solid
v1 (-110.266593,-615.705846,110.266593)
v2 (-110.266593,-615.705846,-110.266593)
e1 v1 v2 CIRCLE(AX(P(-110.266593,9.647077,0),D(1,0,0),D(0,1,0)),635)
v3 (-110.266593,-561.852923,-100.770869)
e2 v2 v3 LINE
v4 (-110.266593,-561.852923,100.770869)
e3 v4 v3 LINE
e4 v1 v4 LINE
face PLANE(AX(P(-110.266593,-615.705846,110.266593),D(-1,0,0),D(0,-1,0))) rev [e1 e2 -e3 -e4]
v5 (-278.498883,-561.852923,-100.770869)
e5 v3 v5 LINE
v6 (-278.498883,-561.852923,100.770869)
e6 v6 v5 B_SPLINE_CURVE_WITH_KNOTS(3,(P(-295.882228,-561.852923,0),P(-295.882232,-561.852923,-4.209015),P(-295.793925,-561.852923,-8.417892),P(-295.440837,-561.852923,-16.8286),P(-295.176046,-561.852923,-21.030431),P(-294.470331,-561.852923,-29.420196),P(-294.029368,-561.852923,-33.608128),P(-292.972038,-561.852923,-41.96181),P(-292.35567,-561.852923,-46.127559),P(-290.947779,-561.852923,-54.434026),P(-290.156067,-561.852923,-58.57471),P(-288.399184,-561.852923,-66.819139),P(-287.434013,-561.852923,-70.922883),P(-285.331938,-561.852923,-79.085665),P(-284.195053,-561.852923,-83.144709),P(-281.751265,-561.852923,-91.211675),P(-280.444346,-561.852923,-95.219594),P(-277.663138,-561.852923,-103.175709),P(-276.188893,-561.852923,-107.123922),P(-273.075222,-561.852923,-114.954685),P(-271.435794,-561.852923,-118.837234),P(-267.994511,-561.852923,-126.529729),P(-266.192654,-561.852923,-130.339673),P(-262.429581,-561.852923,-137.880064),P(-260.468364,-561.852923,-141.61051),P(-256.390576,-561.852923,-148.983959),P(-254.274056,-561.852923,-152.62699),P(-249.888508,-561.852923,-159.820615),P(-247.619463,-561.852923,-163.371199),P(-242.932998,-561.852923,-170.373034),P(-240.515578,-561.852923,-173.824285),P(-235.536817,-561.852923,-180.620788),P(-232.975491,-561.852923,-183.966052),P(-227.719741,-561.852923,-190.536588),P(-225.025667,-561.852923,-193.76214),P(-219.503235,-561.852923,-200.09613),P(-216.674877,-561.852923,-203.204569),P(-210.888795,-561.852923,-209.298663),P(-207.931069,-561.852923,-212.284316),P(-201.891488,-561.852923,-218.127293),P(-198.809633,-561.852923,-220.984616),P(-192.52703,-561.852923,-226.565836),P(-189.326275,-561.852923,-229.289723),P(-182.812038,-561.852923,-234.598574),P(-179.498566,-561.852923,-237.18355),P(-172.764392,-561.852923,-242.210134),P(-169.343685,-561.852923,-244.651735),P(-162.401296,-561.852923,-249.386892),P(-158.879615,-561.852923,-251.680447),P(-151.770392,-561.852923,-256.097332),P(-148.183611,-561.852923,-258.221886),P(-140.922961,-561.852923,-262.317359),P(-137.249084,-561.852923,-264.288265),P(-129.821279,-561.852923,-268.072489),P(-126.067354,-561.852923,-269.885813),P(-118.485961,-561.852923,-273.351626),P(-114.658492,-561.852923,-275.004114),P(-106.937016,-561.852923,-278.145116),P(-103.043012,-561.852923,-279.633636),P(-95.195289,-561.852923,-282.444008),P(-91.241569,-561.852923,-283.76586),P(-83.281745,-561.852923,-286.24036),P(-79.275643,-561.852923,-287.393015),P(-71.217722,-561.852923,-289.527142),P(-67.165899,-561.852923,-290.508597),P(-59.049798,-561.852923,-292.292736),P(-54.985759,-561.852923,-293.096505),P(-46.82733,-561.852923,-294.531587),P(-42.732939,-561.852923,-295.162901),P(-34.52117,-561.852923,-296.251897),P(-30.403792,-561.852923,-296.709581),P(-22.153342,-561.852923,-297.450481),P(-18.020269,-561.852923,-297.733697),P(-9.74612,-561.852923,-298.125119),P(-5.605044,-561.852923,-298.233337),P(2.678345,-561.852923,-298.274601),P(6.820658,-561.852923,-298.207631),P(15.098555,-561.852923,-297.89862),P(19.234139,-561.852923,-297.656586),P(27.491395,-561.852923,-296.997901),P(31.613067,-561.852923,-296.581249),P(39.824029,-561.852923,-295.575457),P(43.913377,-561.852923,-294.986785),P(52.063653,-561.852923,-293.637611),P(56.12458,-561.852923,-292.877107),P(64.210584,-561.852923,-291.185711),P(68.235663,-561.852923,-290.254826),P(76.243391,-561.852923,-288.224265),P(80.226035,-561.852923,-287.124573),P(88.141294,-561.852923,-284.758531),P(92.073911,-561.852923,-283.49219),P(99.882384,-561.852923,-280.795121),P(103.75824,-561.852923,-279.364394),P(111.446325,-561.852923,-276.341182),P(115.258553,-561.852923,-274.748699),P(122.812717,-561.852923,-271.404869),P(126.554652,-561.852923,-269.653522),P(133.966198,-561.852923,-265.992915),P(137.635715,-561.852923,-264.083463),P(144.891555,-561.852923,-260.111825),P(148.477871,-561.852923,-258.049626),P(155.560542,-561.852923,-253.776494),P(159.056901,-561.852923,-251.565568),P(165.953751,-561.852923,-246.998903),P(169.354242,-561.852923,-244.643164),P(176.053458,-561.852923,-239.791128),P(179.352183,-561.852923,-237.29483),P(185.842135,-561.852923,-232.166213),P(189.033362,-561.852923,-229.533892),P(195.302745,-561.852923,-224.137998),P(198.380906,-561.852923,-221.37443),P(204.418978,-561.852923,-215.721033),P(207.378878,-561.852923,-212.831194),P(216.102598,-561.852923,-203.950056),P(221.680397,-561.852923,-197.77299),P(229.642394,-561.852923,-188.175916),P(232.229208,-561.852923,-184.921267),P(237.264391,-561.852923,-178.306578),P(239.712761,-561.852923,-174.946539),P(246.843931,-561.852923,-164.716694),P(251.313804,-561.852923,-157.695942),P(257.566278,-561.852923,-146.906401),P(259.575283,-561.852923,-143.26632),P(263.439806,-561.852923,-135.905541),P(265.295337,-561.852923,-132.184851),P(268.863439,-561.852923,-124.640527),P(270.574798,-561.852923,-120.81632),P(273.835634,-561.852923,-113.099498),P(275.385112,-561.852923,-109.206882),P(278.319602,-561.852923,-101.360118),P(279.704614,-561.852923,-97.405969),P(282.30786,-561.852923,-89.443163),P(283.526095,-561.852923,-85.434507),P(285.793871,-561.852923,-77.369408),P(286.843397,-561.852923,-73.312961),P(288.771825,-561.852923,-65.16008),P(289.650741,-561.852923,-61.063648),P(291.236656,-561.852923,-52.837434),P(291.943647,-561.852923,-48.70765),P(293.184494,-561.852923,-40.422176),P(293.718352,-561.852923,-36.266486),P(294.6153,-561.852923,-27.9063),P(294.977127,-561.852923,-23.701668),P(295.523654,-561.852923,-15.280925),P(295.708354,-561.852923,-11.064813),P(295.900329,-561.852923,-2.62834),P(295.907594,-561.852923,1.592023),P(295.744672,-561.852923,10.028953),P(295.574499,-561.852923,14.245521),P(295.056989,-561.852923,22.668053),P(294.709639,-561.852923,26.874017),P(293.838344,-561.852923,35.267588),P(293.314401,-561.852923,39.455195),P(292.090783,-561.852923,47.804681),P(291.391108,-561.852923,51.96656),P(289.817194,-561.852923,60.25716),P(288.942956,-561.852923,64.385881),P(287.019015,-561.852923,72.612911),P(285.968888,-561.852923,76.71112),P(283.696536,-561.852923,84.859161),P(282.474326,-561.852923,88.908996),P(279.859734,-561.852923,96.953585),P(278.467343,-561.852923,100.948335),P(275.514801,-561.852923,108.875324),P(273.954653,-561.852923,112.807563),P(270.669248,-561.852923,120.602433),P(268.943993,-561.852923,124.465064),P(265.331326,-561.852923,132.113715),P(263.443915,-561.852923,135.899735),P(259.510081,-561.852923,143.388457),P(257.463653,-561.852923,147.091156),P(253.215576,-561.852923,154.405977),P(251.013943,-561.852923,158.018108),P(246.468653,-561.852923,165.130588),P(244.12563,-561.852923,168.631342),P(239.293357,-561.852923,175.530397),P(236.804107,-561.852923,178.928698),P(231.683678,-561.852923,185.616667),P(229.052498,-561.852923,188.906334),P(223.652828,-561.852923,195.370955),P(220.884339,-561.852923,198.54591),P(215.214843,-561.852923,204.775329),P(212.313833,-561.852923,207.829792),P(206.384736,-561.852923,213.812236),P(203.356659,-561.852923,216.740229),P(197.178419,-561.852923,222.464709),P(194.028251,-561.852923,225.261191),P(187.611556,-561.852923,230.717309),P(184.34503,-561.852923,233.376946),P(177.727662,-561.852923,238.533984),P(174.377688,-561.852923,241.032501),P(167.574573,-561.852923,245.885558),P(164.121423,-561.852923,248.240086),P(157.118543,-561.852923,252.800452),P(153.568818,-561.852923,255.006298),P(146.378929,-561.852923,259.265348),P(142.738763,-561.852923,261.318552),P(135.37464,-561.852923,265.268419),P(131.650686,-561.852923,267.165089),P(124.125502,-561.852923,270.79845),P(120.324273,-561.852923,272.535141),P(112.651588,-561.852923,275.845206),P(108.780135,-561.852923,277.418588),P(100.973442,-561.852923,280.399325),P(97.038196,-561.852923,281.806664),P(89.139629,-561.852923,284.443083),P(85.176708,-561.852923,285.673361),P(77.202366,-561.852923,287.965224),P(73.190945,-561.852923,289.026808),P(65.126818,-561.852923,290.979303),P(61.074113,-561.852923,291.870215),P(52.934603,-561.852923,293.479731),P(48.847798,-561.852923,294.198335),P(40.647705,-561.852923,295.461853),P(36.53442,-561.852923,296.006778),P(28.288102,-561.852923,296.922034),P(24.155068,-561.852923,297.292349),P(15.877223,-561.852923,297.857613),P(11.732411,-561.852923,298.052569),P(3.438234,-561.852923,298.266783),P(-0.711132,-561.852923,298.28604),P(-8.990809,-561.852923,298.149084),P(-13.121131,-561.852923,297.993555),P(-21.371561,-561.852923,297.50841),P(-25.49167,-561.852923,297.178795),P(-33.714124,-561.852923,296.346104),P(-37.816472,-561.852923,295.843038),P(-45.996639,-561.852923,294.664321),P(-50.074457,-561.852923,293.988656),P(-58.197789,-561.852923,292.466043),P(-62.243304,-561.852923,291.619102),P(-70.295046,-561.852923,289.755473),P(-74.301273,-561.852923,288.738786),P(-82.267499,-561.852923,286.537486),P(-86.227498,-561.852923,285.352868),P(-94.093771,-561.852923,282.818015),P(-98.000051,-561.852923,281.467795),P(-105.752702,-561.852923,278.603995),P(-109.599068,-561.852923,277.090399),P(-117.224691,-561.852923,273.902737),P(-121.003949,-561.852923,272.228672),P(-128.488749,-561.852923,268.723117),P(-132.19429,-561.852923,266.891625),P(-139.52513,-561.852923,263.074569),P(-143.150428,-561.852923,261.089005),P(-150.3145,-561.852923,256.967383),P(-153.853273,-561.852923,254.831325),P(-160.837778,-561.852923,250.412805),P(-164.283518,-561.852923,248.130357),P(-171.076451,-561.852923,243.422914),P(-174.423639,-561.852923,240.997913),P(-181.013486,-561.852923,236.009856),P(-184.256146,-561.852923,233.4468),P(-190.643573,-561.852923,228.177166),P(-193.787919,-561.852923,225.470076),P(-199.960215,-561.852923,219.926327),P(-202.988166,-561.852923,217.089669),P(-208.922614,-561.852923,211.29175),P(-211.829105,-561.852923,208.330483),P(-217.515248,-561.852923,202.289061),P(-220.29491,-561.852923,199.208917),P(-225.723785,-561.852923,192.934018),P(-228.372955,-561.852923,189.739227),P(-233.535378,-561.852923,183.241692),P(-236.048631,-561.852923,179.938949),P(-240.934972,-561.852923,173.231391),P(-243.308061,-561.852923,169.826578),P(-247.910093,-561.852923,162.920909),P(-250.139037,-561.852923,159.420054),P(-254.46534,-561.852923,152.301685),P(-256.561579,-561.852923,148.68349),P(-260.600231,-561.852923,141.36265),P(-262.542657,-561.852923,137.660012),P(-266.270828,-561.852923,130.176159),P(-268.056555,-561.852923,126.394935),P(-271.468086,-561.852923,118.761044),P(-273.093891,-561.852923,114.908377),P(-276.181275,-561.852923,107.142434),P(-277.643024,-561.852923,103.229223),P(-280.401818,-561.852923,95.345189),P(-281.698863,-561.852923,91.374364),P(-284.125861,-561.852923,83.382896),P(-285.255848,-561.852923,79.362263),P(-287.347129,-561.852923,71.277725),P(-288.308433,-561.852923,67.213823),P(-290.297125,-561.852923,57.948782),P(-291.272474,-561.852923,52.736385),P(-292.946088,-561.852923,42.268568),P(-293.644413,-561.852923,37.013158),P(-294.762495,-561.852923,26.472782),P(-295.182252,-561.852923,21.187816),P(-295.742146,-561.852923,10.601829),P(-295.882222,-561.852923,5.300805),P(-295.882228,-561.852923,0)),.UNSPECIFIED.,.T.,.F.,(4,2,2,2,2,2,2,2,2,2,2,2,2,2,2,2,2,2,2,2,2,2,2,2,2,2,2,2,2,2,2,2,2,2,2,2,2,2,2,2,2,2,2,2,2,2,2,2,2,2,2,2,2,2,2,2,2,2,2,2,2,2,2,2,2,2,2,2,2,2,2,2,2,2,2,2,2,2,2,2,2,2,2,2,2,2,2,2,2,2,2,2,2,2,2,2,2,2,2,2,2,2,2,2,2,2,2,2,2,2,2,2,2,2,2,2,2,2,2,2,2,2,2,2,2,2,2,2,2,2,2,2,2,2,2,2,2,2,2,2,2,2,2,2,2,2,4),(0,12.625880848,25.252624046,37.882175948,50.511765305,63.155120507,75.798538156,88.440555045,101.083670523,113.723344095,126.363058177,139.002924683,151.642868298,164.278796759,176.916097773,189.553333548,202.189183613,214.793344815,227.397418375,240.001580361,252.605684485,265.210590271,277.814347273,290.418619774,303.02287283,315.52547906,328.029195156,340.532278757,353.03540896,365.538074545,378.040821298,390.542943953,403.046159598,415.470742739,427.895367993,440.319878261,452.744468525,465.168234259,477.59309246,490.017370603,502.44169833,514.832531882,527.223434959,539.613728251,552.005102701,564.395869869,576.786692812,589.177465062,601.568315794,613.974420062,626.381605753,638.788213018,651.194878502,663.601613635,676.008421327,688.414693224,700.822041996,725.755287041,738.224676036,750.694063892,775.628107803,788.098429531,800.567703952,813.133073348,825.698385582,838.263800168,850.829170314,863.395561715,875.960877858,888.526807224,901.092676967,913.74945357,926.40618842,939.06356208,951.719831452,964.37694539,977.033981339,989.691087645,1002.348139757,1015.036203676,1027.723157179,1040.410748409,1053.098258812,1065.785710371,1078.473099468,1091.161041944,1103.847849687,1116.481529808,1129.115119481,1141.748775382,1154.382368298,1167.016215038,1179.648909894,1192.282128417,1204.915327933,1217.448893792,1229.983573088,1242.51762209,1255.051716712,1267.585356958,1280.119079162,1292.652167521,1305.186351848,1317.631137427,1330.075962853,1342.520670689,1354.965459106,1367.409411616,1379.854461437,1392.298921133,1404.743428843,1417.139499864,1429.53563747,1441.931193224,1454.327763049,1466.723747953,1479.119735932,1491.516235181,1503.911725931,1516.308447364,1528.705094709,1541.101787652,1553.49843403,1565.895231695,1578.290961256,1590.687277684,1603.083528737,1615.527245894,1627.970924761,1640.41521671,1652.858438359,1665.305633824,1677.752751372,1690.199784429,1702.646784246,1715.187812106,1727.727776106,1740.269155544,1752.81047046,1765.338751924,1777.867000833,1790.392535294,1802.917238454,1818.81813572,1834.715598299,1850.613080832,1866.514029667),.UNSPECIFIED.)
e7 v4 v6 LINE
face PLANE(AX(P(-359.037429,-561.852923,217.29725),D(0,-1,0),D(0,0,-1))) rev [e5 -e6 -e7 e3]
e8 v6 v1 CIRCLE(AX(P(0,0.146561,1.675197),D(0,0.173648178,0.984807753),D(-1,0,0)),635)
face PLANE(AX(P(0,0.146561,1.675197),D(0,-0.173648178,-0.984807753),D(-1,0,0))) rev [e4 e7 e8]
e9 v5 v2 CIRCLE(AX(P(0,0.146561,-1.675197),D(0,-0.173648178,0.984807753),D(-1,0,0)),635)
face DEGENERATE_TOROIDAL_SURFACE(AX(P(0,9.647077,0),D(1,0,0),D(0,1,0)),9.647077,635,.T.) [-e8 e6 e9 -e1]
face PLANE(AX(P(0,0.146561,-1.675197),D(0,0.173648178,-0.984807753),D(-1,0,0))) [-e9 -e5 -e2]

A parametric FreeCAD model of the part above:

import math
import FreeCAD as App
import Part
import Sketcher
from FreeCAD import Vector
Q = App.Units.Quantity


def add_polygon(sketch, points):
    """Adds a closed chain of lines whose ends are joined by coincident constraints."""
    first, n = sketch.GeometryCount, len(points)
    for a, b in zip(points, points[1:] + points[:1]):
        sketch.addGeometry(Part.LineSegment(App.Vector(*a, 0), App.Vector(*b, 0)), False)
    for i in range(n):
        sketch.addConstraint(Sketcher.Constraint("Coincident", first + i, 2, first + (i + 1) % n, 1))

doc = App.newDocument("Part")
body = doc.addObject("PartDesign::Body", "Body")

sketch1 = body.newObject("Sketcher::SketchObject", "Sketch")
sketch1.AttachmentSupport = (doc.getObject("XY_Plane"), [""])
sketch1.MapMode = "FlatFace"
sketch1.addGeometry(Part.LineSegment(Vector(-110, -625, 0), Vector(-110, -524, 0)), False)
sketch1.addGeometry(Part.LineSegment(Vector(-110, -524, 0), Vector(-359, -524, 0)), False)
sketch1.addGeometry(Part.ArcOfCircle(Part.Circle(Vector(0, 0, 0), Vector(0, 0, 1), 635), math.radians(-124), math.radians(-100)), False)
sketch1.addGeometry(Part.LineSegment(Vector(0, 10, 0), Vector(-359, 10, 0)), True)
sketch1.addConstraint(Sketcher.Constraint("Coincident", 0, 2, 1, 1))
sketch1.addConstraint(Sketcher.Constraint("Coincident", 1, 2, 2, 1))
sketch1.addConstraint(Sketcher.Constraint("Coincident", 2, 2, 0, 1))
sketch1.addConstraint(Sketcher.Constraint("Vertical", 0))
sketch1.addConstraint(Sketcher.Constraint("Horizontal", 1))
sketch1.addConstraint(Sketcher.Constraint("Horizontal", 3))
sketch1.addConstraint(Sketcher.Constraint("Coincident", 2, 3, -1, 1))
sketch1.addConstraint(Sketcher.Constraint("PointOnObject", 3, 1, -2))
sketch1.addConstraint(Sketcher.Constraint("Vertical", 1, 2, 3, 2))
sketch1.addConstraint(Sketcher.Constraint("Radius", 2, Q("25 in")))
sketch1.addConstraint(Sketcher.Constraint("DistanceY", 0, 1, 0, 2, Q("4 in")))
sketch1.addConstraint(Sketcher.Constraint("DistanceY", 0, 2, 3, 1, Q("21 in")))
sketch1.addConstraint(Sketcher.Constraint("DistanceX", 3, 2, 3, 1, Q("359.037429 mm")))
revolution = body.newObject("PartDesign::Revolution", "Revolution")
revolution.Profile = sketch1
revolution.ReferenceAxis = (sketch1, ["Axis0"])
revolution.Angle = 10

sketch2 = body.newObject("Sketcher::SketchObject", "Sketch001")
sketch2.AttachmentSupport = (doc.getObject("XY_Plane"), [""])
sketch2.MapMode = "FlatFace"
sketch2.addGeometry(Part.LineSegment(Vector(-110, -625, 0), Vector(-110, -524, 0)), False)
sketch2.addGeometry(Part.LineSegment(Vector(-110, -524, 0), Vector(-359, -524, 0)), False)
sketch2.addGeometry(Part.ArcOfCircle(Part.Circle(Vector(0, 0, 0), Vector(0, 0, 1), 635), math.radians(-124), math.radians(-100)), False)
sketch2.addGeometry(Part.LineSegment(Vector(-359, 10, 0), Vector(0, 10, 0)), True)
sketch2.addConstraint(Sketcher.Constraint("Coincident", 0, 2, 1, 1))
sketch2.addConstraint(Sketcher.Constraint("Coincident", 1, 2, 2, 1))
sketch2.addConstraint(Sketcher.Constraint("Coincident", 2, 2, 0, 1))
sketch2.addConstraint(Sketcher.Constraint("Vertical", 0))
sketch2.addConstraint(Sketcher.Constraint("Horizontal", 1))
sketch2.addConstraint(Sketcher.Constraint("Horizontal", 3))
sketch2.addConstraint(Sketcher.Constraint("Coincident", 2, 3, -1, 1))
sketch2.addConstraint(Sketcher.Constraint("PointOnObject", 3, 2, -2))
sketch2.addConstraint(Sketcher.Constraint("Vertical", 1, 2, 3, 1))
sketch2.addConstraint(Sketcher.Constraint("Radius", 2, Q("25 in")))
sketch2.addConstraint(Sketcher.Constraint("DistanceY", 0, 1, 0, 2, Q("4 in")))
sketch2.addConstraint(Sketcher.Constraint("DistanceY", 1, 2, 3, 1, Q("21 in")))
sketch2.addConstraint(Sketcher.Constraint("DistanceX", 3, 1, 3, 2, Q("359.037429 mm")))
revolution2 = body.newObject("PartDesign::Revolution", "Revolution001")
revolution2.Profile = sketch2
revolution2.ReferenceAxis = (sketch2, ["Axis0"])
revolution2.Angle = 10

sketch3 = body.newObject("Sketcher::SketchObject", "Sketch002")
sketch3.AttachmentSupport = (doc.getObject("YZ_Plane"), [""])
sketch3.MapMode = "FlatFace"
sketch3.AttachmentOffset = App.Placement(Vector(0, 0, -110.266593), App.Rotation())
add_polygon(sketch3, [(-485, 217), (-562, 217), (-562, -195), (-485, -195)])
sketch3.addConstraint(Sketcher.Constraint("Horizontal", 0))
sketch3.addConstraint(Sketcher.Constraint("Vertical", 1))
sketch3.addConstraint(Sketcher.Constraint("Horizontal", 2))
sketch3.addConstraint(Sketcher.Constraint("Vertical", 3))
sketch3.addConstraint(Sketcher.Constraint("DistanceX", 0, 2, 0, 1, Q("77.070568 mm")))
sketch3.addConstraint(Sketcher.Constraint("DistanceY", 1, 2, 1, 1, Q("412.295717 mm")))
sketch3.addConstraint(Sketcher.Constraint("DistanceY", -1, 1, 0, 2, Q("217.29725 mm")))
sketch3.addConstraint(Sketcher.Constraint("DistanceX", 0, 2, -1, 1, Q("561.852923 mm")))
pocket1 = body.newObject("PartDesign::Pocket", "Pocket")
pocket1.Profile = sketch3
pocket1.Type = "ThroughAll"

doc.recompute()
